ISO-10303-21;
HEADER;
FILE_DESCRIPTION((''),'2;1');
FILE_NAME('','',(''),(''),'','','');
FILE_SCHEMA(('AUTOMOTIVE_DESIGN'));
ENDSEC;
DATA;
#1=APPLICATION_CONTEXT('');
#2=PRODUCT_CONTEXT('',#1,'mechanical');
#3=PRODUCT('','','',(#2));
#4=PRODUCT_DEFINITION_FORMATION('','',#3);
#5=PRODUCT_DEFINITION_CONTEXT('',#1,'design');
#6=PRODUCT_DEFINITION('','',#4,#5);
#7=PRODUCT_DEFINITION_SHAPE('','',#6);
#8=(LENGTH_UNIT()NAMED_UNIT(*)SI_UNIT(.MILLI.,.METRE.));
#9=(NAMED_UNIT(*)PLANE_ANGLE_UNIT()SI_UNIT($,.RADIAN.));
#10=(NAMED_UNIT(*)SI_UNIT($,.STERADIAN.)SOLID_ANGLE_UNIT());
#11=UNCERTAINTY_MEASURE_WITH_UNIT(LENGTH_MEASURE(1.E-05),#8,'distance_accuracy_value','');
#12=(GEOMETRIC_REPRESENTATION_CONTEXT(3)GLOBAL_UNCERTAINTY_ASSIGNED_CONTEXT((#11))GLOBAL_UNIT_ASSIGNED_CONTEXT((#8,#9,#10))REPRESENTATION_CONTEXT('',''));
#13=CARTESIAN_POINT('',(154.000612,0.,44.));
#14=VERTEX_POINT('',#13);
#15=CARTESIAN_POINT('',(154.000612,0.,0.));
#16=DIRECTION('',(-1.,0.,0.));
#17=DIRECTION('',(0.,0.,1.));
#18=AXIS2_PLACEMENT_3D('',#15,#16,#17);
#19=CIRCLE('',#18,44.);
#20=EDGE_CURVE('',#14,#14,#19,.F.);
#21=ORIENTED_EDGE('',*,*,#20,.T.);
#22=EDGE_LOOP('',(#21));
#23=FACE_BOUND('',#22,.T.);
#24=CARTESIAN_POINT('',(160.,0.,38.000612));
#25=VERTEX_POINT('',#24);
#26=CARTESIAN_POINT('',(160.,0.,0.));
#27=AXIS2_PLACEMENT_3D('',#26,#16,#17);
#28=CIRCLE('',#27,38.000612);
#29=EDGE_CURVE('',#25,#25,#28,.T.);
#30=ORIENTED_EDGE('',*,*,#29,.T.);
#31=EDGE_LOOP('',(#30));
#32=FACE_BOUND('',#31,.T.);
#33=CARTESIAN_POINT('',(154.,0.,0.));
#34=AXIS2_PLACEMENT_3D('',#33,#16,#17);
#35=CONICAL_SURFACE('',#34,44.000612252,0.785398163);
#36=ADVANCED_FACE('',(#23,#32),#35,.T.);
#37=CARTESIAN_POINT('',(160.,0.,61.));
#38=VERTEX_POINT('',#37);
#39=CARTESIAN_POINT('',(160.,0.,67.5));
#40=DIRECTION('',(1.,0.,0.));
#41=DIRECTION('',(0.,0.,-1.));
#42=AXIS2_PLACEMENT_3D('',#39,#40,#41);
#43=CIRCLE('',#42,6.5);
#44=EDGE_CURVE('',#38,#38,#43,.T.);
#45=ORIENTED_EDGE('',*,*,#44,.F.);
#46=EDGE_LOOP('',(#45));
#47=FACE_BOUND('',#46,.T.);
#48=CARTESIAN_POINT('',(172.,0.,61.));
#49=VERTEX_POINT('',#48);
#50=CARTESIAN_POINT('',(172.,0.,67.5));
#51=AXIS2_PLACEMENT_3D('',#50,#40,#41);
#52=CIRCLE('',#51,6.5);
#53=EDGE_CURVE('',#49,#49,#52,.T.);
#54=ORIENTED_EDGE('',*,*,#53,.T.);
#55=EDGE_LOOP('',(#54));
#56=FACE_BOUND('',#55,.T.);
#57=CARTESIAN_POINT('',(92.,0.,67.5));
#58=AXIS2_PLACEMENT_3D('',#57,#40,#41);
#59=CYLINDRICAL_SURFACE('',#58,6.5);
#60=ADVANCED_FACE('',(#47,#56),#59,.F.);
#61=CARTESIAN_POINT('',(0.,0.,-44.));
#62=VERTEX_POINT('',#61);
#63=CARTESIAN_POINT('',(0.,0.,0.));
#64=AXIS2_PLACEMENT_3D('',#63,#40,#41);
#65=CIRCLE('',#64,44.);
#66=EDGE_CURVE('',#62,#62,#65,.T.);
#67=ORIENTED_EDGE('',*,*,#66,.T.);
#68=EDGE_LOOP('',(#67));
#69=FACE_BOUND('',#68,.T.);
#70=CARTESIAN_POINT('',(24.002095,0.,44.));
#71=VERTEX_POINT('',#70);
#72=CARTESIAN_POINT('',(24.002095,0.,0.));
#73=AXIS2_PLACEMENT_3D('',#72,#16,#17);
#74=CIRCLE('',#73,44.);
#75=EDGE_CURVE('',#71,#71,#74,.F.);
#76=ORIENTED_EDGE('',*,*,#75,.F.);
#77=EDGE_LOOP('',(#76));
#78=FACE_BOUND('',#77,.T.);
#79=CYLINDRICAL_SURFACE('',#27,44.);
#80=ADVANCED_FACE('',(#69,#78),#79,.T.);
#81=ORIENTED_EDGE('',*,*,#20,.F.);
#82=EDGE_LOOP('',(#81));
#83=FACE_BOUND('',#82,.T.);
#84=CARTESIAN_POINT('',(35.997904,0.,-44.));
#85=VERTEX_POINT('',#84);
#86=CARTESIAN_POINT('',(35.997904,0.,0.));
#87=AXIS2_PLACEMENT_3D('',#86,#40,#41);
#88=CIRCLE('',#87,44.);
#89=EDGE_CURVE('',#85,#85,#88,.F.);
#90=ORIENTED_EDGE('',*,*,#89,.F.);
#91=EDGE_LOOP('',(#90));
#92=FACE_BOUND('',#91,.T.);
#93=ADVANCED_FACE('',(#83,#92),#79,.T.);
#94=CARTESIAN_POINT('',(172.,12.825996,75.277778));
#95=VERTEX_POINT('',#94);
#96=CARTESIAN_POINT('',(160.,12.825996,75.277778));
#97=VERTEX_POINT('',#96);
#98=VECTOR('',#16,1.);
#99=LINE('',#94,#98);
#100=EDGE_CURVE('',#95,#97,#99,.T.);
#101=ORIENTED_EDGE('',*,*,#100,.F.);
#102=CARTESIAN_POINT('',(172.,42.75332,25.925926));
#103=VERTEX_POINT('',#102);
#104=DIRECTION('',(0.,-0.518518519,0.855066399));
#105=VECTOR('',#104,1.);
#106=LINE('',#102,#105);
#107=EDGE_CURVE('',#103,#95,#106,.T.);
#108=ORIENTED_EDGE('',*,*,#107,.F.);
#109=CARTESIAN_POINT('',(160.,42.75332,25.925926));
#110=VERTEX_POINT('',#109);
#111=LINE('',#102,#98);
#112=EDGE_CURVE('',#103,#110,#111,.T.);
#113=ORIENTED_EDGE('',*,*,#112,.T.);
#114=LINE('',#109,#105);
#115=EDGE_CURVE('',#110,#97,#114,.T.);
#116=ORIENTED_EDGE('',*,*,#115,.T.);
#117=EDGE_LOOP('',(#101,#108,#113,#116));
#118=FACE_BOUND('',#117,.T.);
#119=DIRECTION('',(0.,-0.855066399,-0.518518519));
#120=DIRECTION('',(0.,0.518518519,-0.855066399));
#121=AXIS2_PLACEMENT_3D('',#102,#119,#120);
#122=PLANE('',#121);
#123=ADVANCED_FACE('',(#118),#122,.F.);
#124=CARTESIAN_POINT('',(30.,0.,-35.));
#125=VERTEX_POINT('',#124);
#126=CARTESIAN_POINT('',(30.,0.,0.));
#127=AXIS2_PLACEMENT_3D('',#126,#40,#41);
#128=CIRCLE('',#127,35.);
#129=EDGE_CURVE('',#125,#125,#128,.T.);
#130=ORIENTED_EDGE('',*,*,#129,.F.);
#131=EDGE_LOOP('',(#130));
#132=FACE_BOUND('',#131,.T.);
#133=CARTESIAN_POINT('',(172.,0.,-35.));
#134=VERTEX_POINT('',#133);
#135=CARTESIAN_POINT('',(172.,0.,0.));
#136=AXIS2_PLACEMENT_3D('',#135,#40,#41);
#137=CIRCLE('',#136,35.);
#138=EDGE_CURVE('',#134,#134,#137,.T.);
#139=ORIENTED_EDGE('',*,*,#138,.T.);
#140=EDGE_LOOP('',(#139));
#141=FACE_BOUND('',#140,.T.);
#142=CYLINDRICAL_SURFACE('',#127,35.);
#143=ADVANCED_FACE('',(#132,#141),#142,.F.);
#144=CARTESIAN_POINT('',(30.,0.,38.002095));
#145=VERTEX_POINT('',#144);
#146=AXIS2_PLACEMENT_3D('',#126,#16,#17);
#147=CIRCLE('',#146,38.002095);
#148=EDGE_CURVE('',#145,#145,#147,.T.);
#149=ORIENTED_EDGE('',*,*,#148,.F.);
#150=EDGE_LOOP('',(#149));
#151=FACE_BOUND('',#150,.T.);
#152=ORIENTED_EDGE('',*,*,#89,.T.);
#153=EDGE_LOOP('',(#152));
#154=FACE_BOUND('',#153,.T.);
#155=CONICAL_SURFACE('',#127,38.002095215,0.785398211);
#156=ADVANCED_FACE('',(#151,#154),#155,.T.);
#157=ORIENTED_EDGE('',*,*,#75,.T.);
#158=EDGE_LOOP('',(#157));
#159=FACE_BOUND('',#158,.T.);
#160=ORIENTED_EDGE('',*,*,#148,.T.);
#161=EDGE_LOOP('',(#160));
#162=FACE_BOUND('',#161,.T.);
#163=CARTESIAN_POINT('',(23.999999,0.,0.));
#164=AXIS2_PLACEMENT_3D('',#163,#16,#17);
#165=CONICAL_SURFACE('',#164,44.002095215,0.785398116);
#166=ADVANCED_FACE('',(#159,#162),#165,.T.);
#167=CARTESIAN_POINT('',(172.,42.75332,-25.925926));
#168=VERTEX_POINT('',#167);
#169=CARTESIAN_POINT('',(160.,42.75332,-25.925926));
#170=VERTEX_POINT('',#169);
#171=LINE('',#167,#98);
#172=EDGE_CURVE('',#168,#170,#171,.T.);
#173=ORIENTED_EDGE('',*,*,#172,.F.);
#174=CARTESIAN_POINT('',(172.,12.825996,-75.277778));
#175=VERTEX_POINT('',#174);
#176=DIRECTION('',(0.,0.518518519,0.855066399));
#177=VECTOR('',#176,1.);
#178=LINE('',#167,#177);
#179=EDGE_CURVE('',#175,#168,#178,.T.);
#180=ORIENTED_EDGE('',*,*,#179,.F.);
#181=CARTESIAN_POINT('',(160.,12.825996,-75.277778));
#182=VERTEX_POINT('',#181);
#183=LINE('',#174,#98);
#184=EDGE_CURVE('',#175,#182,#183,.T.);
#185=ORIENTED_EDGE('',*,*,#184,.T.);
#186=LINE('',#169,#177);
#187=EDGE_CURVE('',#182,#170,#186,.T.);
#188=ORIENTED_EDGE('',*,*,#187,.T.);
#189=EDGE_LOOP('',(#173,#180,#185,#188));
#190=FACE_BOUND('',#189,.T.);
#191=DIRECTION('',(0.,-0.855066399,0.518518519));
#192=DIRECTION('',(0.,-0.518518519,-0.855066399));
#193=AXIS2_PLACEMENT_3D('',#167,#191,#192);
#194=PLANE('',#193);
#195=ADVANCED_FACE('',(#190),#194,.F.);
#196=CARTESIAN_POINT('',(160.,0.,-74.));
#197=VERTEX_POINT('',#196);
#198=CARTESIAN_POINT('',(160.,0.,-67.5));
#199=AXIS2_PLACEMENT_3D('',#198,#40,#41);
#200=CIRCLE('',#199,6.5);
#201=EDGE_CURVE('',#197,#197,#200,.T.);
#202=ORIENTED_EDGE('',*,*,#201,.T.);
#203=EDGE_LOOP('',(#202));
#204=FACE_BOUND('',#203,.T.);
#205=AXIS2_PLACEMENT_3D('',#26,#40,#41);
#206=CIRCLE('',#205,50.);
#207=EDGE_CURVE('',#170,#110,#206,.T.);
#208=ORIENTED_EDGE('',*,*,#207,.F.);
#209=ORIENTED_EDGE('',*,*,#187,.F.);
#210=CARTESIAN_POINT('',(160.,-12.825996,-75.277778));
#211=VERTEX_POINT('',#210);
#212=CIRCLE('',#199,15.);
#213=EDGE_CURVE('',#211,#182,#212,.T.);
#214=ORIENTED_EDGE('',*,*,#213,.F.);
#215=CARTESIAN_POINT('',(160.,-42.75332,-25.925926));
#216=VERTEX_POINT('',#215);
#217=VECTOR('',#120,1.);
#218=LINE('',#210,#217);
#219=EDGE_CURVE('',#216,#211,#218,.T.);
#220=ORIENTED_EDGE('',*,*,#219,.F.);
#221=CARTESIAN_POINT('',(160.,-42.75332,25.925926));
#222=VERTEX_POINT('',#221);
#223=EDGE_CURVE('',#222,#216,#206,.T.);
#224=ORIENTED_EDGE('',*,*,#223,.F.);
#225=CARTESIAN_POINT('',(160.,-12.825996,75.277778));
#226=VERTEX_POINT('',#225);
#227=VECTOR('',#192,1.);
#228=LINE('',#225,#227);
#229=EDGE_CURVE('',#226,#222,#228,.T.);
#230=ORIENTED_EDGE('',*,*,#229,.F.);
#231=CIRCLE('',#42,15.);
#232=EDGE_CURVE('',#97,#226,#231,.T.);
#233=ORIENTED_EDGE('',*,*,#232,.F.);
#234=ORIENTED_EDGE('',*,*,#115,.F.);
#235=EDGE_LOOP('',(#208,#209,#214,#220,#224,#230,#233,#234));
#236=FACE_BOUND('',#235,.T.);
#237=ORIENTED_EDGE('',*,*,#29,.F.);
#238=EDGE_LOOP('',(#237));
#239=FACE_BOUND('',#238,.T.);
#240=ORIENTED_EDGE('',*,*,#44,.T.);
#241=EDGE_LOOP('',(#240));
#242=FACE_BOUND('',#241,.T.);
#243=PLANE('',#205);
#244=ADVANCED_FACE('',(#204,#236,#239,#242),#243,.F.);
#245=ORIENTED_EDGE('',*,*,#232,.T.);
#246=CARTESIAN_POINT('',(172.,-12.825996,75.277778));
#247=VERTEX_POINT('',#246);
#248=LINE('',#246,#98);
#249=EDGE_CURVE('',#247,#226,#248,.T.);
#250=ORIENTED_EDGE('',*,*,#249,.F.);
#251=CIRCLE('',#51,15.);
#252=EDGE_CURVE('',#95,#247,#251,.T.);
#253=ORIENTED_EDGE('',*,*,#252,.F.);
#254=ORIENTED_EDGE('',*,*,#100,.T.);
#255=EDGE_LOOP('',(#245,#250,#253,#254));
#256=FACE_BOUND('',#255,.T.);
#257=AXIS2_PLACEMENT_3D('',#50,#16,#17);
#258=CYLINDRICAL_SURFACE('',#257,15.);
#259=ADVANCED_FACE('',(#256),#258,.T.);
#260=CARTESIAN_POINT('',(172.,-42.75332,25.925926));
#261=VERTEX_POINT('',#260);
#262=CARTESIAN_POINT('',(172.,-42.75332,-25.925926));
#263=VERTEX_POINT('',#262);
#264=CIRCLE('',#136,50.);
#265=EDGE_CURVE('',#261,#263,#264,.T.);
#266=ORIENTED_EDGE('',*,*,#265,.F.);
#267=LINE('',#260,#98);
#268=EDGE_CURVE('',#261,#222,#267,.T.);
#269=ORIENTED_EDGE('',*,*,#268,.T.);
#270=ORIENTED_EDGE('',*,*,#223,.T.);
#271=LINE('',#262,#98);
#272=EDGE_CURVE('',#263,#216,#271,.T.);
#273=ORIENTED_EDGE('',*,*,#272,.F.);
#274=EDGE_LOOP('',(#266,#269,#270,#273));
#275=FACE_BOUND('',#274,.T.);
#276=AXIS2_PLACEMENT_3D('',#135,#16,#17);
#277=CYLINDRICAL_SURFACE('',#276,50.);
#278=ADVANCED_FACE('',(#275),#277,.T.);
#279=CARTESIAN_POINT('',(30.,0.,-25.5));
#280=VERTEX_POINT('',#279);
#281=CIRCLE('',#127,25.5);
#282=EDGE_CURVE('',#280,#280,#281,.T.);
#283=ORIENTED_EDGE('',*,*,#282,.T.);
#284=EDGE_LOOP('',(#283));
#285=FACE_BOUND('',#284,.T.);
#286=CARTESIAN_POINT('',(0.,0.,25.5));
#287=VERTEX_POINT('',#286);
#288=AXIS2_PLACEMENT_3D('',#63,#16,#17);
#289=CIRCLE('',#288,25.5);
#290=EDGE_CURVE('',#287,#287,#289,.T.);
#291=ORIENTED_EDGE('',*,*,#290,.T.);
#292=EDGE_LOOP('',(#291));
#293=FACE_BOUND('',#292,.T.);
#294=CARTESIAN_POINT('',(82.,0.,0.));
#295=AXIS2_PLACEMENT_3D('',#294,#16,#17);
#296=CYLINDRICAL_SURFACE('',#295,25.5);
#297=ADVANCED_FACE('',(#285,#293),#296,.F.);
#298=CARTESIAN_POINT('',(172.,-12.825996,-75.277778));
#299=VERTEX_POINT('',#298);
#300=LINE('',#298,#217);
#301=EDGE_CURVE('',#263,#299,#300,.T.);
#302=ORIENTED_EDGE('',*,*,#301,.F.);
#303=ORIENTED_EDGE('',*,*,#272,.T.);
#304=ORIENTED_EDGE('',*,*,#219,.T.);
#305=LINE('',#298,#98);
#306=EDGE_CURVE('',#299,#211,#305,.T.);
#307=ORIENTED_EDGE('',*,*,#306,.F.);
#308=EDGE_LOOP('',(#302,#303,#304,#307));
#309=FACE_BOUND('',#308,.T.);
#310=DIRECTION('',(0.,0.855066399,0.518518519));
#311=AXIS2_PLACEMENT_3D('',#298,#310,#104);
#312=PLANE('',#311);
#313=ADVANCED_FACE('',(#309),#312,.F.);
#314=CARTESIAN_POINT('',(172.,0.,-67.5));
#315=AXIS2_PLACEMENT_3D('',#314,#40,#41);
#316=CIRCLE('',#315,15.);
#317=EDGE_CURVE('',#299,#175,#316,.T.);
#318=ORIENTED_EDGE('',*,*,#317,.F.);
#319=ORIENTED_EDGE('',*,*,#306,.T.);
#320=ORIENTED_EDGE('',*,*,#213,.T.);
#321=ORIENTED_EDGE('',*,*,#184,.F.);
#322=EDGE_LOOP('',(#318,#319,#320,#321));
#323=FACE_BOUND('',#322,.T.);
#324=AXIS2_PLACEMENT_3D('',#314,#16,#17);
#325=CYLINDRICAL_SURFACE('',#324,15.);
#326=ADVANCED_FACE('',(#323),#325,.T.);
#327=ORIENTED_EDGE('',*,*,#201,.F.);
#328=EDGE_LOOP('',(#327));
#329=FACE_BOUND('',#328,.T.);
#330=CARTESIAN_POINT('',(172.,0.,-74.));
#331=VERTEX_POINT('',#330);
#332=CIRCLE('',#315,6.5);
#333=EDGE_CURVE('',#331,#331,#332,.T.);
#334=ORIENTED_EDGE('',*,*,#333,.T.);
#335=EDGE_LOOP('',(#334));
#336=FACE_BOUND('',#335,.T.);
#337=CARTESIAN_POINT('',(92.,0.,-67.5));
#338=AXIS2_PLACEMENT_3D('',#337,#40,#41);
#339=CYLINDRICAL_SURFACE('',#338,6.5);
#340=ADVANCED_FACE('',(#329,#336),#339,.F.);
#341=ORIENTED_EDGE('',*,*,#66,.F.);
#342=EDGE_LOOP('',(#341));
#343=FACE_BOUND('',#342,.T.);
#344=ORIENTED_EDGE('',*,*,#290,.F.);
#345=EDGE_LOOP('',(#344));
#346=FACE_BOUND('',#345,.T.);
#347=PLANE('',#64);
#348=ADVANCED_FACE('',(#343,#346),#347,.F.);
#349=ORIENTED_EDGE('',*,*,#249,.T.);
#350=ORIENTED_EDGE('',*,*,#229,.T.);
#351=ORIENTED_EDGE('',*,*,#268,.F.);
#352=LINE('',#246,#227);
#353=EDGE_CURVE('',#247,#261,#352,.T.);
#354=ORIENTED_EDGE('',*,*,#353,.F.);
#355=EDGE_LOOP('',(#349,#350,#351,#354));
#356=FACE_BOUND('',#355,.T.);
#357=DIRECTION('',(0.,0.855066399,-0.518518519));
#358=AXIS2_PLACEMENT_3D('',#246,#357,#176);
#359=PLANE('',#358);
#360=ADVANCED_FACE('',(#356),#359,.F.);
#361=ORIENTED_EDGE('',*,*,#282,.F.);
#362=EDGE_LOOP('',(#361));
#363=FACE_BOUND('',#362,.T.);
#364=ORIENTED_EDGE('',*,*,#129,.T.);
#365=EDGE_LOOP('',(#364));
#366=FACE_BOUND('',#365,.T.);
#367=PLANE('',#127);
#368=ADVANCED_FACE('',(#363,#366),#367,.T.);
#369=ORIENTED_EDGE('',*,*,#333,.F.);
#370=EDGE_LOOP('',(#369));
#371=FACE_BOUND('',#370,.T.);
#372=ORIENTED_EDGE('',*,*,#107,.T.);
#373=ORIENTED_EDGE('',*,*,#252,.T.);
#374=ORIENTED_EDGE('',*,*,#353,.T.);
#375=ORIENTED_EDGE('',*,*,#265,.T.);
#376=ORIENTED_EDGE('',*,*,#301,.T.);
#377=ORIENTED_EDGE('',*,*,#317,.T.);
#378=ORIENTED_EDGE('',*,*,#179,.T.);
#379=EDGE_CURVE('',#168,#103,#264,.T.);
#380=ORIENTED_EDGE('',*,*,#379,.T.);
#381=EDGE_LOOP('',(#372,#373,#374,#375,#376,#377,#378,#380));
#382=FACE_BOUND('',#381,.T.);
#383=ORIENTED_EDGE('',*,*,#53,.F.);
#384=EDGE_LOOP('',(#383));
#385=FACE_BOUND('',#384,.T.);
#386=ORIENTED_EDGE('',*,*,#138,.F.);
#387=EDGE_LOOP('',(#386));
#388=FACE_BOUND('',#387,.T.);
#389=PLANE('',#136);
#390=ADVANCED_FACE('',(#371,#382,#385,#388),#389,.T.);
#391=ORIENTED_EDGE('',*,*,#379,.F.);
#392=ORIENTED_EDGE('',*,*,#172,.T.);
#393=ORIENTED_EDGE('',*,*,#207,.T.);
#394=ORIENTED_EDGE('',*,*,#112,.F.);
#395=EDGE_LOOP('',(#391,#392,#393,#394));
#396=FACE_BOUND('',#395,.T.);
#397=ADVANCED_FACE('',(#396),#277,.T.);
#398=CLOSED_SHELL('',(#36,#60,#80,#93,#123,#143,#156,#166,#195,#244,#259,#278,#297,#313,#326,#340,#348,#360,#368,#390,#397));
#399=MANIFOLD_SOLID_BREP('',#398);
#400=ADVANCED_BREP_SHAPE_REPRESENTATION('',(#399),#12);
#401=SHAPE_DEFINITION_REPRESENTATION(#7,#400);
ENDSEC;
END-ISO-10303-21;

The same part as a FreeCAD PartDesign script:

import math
import FreeCAD as App
import Part
import Sketcher
from FreeCAD import Vector

doc = App.newDocument("Part")
body = doc.addObject("PartDesign::Body", "Body")

sketch1 = body.newObject("Sketcher::SketchObject", "Sketch")
sketch1.AttachmentSupport = (doc.getObject("YZ_Plane"), [""])
sketch1.MapMode = "FlatFace"
sketch1.addGeometry(Part.Circle(Vector(0, 0, 0), Vector(0, 0, 1), 44), False)
sketch1.addConstraint(Sketcher.Constraint("Coincident", 0, 3, -1, 1))
sketch1.addConstraint(Sketcher.Constraint("Diameter", 0, 88.0))
pad1 = body.newObject("PartDesign::Pad", "Pad")
pad1.Profile = sketch1
pad1.Length = 160

sketch2 = body.newObject("Sketcher::SketchObject", "Sketch001")
sketch2.AttachmentSupport = (doc.getObject("YZ_Plane"), [""])
sketch2.MapMode = "FlatFace"
sketch2.AttachmentOffset = App.Placement(Vector(0, 0, 160), App.Rotation())
sketch2.addGeometry(Part.LineSegment(Vector(43, 26, 0), Vector(13, 75, 0)), False)
sketch2.addGeometry(Part.ArcOfCircle(Part.Circle(Vector(0, 68, 0), Vector(0, 0, 1), 15), math.radians(31), math.radians(149)), False)
sketch2.addGeometry(Part.LineSegment(Vector(-13, 75, 0), Vector(-43, 26, 0)), False)
sketch2.addGeometry(Part.ArcOfCircle(Part.Circle(Vector(0, 0, 0), Vector(0, 0, 1), 50), math.radians(149), math.radians(211)), False)
sketch2.addGeometry(Part.LineSegment(Vector(-43, -26, 0), Vector(-13, -75, 0)), False)
sketch2.addGeometry(Part.ArcOfCircle(Part.Circle(Vector(0, -68, 0), Vector(0, 0, 1), 15), math.radians(-149), math.radians(-31)), False)
sketch2.addGeometry(Part.LineSegment(Vector(13, -75, 0), Vector(43, -26, 0)), False)
sketch2.addGeometry(Part.ArcOfCircle(Part.Circle(Vector(0, 0, 0), Vector(0, 0, 1), 50), math.radians(-31), math.radians(31)), False)
sketch2.addConstraint(Sketcher.Constraint("Tangent", 0, 2, 1, 1))
sketch2.addConstraint(Sketcher.Constraint("Tangent", 1, 2, 2, 1))
sketch2.addConstraint(Sketcher.Constraint("Tangent", 2, 2, 3, 1))
sketch2.addConstraint(Sketcher.Constraint("Tangent", 3, 2, 4, 1))
sketch2.addConstraint(Sketcher.Constraint("Tangent", 4, 2, 5, 1))
sketch2.addConstraint(Sketcher.Constraint("Tangent", 5, 2, 6, 1))
sketch2.addConstraint(Sketcher.Constraint("Tangent", 6, 2, 7, 1))
sketch2.addConstraint(Sketcher.Constraint("Tangent", 7, 2, 0, 1))
sketch2.addConstraint(Sketcher.Constraint("Coincident", 3, 3, -1, 1))
sketch2.addConstraint(Sketcher.Constraint("Coincident", 7, 3, -1, 1))
sketch2.addConstraint(Sketcher.Constraint("Equal", 1, 5))
sketch2.addConstraint(Sketcher.Constraint("Equal", 3, 7))
sketch2.addConstraint(Sketcher.Constraint("Symmetric", 1, 3, 5, 3, -1, 1))
sketch2.addConstraint(Sketcher.Constraint("PointOnObject", 1, 3, -2))
sketch2.addConstraint(Sketcher.Constraint("Radius", 1, 15.0))
sketch2.addConstraint(Sketcher.Constraint("Radius", 3, 50.0))
sketch2.addConstraint(Sketcher.Constraint("DistanceY", 5, 3, 1, 3, 135.0))
pad2 = body.newObject("PartDesign::Pad", "Pad001")
pad2.Profile = sketch2
pad2.Length = 12

sketch3 = body.newObject("Sketcher::SketchObject", "Sketch002")
sketch3.AttachmentSupport = (doc.getObject("YZ_Plane"), [""])
sketch3.MapMode = "FlatFace"
sketch3.AttachmentOffset = App.Placement(Vector(0, 0, 172), App.Rotation())
sketch3.addGeometry(Part.Circle(Vector(0, -68, 0), Vector(0, 0, 1), 6), False)
sketch3.addGeometry(Part.Circle(Vector(0, 68, 0), Vector(0, 0, 1), 6), False)
sketch3.addConstraint(Sketcher.Constraint("Equal", 0, 1))
sketch3.addConstraint(Sketcher.Constraint("Symmetric", 0, 3, 1, 3, -1, 1))
sketch3.addConstraint(Sketcher.Constraint("PointOnObject", 0, 3, -2))
sketch3.addConstraint(Sketcher.Constraint("Diameter", 0, 13.0))
sketch3.addConstraint(Sketcher.Constraint("DistanceY", 0, 3, 1, 3, 135.0))
pocket1 = body.newObject("PartDesign::Pocket", "Pocket")
pocket1.Profile = sketch3
pocket1.Length = 80

sketch4 = body.newObject("Sketcher::SketchObject", "Sketch003")
sketch4.AttachmentSupport = (doc.getObject("YZ_Plane"), [""])
sketch4.MapMode = "FlatFace"
sketch4.AttachmentOffset = App.Placement(Vector(0, 0, 172), App.Rotation())
sketch4.addGeometry(Part.Circle(Vector(0, 0, 0), Vector(0, 0, 1), 35), False)
sketch4.addConstraint(Sketcher.Constraint("Coincident", 0, 3, -1, 1))
sketch4.addConstraint(Sketcher.Constraint("Diameter", 0, 70.0))
pocket2 = body.newObject("PartDesign::Pocket", "Pocket001")
pocket2.Profile = sketch4
pocket2.Length = 142

sketch5 = body.newObject("Sketcher::SketchObject", "Sketch004")
sketch5.AttachmentSupport = (doc.getObject("YZ_Plane"), [""])
sketch5.MapMode = "FlatFace"
sketch5.addGeometry(Part.Circle(Vector(0, 0, 0), Vector(0, 0, 1), 26), False)
sketch5.addConstraint(Sketcher.Constraint("Coincident", 0, 3, -1, 1))
sketch5.addConstraint(Sketcher.Constraint("Diameter", 0, 51.0))
pocket3 = body.newObject("PartDesign::Pocket", "Pocket002")
pocket3.Profile = sketch5
pocket3.Length = 82
pocket3.Reversed = True

sketch6 = body.newObject("Sketcher::SketchObject", "Sketch005")
sketch6.AttachmentSupport = (doc.getObject("XZ_Plane"), [""])
sketch6.MapMode = "FlatFace"
sketch6.addGeometry(Part.LineSegment(Vector(24, -44, 0), Vector(30, -38, 0)), False)
sketch6.addGeometry(Part.LineSegment(Vector(30, -38, 0), Vector(36, -44, 0)), False)
sketch6.addGeometry(Part.LineSegment(Vector(36, -44, 0), Vector(24, -44, 0)), False)
sketch6.addGeometry(Part.LineSegment(Vector(160, -38, 0), Vector(160, -44, 0)), False)
sketch6.addGeometry(Part.LineSegment(Vector(160, -44, 0), Vector(154, -44, 0)), False)
sketch6.addGeometry(Part.LineSegment(Vector(154, -44, 0), Vector(160, -38, 0)), False)
sketch6.addConstraint(Sketcher.Constraint("Coincident", 0, 2, 1, 1))
sketch6.addConstraint(Sketcher.Constraint("Coincident", 1, 2, 2, 1))
sketch6.addConstraint(Sketcher.Constraint("Coincident", 2, 2, 0, 1))
sketch6.addConstraint(Sketcher.Constraint("Coincident", 3, 2, 4, 1))
sketch6.addConstraint(Sketcher.Constraint("Coincident", 4, 2, 5, 1))
sketch6.addConstraint(Sketcher.Constraint("Coincident", 5, 2, 3, 1))
sketch6.addConstraint(Sketcher.Constraint("Horizontal", 2))
sketch6.addConstraint(Sketcher.Constraint("Vertical", 3))
sketch6.addConstraint(Sketcher.Constraint("Horizontal", 4))
sketch6.addConstraint(Sketcher.Constraint("Perpendicular", 0, 1))
sketch6.addConstraint(Sketcher.Constraint("Perpendicular", 1, 5))
sketch6.addConstraint(Sketcher.Constraint("Equal", 4, 3))
sketch6.addConstraint(Sketcher.Constraint("Equal", 1, 5))
sketch6.addConstraint(Sketcher.Constraint("DistanceX", 2, 2, 2, 1, 12.0))
sketch6.addConstraint(Sketcher.Constraint("DistanceX", -1, 1, 0, 2, 30.0))
sketch6.addConstraint(Sketcher.Constraint("DistanceX", -1, 1, 3, 2, 160.0))
sketch6.addConstraint(Sketcher.Constraint("DistanceY", 0, 2, -1, 1, 38.002095))
sketch6.addConstraint(Sketcher.Constraint("DistanceY", 3, 2, -1, 1, 44.000612))
groove = body.newObject("PartDesign::Groove", "Groove")
groove.Profile = sketch6
groove.ReferenceAxis = (sketch6, ["H_Axis"])
groove.Angle = 360

doc.recompute()
